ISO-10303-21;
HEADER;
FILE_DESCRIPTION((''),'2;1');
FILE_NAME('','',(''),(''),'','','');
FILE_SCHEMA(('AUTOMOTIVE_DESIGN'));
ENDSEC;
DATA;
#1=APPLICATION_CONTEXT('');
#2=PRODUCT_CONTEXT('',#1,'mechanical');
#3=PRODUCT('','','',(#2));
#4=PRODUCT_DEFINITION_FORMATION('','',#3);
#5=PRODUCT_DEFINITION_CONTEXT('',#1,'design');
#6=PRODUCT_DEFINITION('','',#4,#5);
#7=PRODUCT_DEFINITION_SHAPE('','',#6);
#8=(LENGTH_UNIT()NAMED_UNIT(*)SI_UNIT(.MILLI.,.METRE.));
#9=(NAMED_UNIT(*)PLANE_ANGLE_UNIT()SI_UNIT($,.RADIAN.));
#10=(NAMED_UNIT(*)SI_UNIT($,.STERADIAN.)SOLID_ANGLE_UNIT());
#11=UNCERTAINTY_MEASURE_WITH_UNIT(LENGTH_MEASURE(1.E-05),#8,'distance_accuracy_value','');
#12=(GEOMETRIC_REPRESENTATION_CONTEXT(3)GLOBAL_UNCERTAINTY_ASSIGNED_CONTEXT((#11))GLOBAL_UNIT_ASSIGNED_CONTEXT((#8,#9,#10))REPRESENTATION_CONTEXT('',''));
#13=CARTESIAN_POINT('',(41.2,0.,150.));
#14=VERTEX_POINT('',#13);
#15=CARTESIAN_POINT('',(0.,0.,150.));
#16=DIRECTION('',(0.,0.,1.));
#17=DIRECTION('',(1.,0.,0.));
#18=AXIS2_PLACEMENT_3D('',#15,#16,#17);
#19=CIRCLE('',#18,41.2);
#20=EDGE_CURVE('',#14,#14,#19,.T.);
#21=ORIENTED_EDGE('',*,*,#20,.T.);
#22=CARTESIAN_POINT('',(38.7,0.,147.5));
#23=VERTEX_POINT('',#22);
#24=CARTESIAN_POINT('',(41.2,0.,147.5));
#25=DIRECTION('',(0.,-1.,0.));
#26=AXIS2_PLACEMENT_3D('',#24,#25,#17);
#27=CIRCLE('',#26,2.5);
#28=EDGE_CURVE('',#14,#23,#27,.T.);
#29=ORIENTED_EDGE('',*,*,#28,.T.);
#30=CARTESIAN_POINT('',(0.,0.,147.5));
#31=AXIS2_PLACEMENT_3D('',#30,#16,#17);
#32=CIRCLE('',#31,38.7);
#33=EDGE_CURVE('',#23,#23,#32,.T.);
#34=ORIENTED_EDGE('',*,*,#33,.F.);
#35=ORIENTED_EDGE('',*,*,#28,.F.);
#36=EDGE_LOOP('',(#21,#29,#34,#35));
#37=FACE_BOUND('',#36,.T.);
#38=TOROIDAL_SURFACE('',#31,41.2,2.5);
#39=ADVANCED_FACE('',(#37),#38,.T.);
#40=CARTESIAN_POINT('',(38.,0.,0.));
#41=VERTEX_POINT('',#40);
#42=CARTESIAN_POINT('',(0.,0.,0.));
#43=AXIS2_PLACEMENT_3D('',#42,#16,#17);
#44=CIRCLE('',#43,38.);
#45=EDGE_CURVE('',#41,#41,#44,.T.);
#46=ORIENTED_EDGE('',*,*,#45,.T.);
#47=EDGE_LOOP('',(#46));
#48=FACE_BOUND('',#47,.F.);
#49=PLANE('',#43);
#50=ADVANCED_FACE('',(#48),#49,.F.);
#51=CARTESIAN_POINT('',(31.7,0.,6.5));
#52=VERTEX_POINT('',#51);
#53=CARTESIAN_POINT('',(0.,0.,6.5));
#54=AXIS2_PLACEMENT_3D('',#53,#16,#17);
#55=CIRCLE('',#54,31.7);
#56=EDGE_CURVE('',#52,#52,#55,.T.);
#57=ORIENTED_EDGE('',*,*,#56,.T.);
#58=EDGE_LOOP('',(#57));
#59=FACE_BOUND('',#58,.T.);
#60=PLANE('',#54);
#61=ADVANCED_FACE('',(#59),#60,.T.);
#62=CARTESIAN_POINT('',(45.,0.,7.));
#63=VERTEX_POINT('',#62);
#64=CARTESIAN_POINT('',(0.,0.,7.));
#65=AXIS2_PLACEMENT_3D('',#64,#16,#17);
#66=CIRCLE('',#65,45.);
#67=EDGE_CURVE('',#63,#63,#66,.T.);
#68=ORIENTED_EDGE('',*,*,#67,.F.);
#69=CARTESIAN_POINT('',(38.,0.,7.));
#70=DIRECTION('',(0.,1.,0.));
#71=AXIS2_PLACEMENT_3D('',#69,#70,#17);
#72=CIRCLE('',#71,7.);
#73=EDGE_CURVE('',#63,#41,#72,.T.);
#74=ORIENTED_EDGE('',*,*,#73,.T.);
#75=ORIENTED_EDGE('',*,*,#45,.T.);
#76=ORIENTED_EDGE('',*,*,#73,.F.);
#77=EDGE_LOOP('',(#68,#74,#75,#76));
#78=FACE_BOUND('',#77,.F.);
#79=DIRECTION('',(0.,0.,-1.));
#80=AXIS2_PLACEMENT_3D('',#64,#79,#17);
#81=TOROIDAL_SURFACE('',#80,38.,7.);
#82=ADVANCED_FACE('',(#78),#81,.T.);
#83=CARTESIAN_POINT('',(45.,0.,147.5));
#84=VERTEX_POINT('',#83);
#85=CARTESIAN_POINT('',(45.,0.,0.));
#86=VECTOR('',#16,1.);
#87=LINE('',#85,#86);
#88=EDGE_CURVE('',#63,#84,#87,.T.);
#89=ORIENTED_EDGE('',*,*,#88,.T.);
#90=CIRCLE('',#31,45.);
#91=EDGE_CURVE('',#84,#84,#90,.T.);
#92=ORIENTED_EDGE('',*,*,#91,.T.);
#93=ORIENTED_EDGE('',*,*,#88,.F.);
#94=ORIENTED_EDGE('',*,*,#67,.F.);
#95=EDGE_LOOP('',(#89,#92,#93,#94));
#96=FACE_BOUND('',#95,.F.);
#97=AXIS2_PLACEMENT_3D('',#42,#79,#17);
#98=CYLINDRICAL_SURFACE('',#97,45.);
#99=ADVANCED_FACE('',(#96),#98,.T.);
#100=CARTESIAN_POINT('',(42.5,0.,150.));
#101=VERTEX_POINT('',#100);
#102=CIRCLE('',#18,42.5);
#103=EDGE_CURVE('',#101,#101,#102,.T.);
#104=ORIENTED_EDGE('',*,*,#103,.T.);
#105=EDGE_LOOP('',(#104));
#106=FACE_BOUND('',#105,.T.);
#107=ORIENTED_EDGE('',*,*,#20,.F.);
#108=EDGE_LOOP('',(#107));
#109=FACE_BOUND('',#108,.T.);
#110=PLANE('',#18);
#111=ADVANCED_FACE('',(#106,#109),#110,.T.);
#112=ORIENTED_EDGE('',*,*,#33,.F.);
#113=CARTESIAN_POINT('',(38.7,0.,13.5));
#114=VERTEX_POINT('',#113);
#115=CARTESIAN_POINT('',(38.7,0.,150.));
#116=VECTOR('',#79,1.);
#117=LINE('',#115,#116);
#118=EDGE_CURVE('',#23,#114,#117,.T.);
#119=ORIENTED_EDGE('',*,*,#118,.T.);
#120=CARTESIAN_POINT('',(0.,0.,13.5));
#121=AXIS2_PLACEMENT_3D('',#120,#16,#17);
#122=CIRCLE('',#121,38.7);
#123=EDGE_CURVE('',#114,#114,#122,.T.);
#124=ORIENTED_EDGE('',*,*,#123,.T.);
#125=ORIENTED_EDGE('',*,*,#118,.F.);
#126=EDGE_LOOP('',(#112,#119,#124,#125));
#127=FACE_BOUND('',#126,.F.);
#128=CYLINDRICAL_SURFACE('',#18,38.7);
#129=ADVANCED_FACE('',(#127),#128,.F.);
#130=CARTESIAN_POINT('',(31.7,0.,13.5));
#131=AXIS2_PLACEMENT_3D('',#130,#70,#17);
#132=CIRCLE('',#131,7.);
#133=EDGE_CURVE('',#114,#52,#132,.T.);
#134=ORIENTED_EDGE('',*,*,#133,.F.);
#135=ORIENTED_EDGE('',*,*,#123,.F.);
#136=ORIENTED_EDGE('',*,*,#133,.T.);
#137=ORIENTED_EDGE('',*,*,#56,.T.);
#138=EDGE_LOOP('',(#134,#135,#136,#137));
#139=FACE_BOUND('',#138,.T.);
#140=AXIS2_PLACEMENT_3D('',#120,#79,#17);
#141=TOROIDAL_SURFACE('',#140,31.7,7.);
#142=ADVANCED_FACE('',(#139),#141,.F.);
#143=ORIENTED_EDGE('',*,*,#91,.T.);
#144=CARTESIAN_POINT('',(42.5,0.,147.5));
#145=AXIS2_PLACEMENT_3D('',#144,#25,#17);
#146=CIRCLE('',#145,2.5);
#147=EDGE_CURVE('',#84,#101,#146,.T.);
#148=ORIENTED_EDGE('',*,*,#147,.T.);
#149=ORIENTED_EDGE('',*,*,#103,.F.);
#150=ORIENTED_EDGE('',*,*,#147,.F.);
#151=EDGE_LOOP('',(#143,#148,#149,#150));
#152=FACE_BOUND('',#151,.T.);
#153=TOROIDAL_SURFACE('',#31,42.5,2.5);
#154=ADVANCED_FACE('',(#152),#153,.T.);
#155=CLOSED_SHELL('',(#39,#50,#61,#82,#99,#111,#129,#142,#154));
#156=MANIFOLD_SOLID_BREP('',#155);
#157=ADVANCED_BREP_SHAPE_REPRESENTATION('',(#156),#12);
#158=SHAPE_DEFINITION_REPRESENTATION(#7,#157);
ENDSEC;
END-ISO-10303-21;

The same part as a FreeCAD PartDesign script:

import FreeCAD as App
import Part
import Sketcher
Q = App.Units.Quantity


def edges_at(feature, points):
    """Names of the edges that pass closest to the given points."""
    edges = feature.Shape.Edges
    near = lambda p: min(range(len(edges)), key=lambda i: edges[i].distToShape(Part.Vertex(*p))[0])
    return sorted({f"Edge{near(p) + 1}" for p in points})

doc = App.newDocument("Part")
body = doc.addObject("PartDesign::Body", "Body")

sketch1 = body.newObject("Sketcher::SketchObject", "Sketch")
sketch1.AttachmentSupport = (doc.getObject("XY_Plane"), [""])
sketch1.MapMode = "FlatFace"
sketch1.addGeometry(Part.Circle(App.Vector(0, 0, 0), App.Vector(0, 0, 1), 45), False)
sketch1.addConstraint(Sketcher.Constraint("Coincident", 0, 3, -1, 1))
sketch1.addConstraint(Sketcher.Constraint("Diameter", 0, Q("90 mm")))
pad1 = body.newObject("PartDesign::Pad", "Pad")
pad1.Profile = sketch1
pad1.Length = 150

sketch2 = body.newObject("Sketcher::SketchObject", "Sketch001")
sketch2.AttachmentSupport = (doc.getObject("XY_Plane"), [""])
sketch2.MapMode = "FlatFace"
sketch2.AttachmentOffset = App.Placement(App.Vector(0, 0, 150), App.Rotation())
sketch2.addGeometry(Part.Circle(App.Vector(0, 0, 0), App.Vector(0, 0, 1), 39), False)
sketch2.addConstraint(Sketcher.Constraint("Coincident", 0, 3, -1, 1))
sketch2.addConstraint(Sketcher.Constraint("Diameter", 0, Q("77.4 mm")))
pocket1 = body.newObject("PartDesign::Pocket", "Pocket")
pocket1.Profile = sketch2
pocket1.Length = 143.5
doc.recompute()

fillet = body.newObject("PartDesign::Fillet", "Fillet")
fillet.Base = (pocket1, edges_at(pocket1, [(-45, 0, 150), (-38.7, 0, 150)]))
fillet.Radius = 2.5
doc.recompute()

fillet2 = body.newObject("PartDesign::Fillet", "Fillet001")
fillet2.Base = (fillet, edges_at(fillet, [(-38.7, 0, 6.5), (-45, 0, 0)]))
fillet2.Radius = 7

doc.recompute()
